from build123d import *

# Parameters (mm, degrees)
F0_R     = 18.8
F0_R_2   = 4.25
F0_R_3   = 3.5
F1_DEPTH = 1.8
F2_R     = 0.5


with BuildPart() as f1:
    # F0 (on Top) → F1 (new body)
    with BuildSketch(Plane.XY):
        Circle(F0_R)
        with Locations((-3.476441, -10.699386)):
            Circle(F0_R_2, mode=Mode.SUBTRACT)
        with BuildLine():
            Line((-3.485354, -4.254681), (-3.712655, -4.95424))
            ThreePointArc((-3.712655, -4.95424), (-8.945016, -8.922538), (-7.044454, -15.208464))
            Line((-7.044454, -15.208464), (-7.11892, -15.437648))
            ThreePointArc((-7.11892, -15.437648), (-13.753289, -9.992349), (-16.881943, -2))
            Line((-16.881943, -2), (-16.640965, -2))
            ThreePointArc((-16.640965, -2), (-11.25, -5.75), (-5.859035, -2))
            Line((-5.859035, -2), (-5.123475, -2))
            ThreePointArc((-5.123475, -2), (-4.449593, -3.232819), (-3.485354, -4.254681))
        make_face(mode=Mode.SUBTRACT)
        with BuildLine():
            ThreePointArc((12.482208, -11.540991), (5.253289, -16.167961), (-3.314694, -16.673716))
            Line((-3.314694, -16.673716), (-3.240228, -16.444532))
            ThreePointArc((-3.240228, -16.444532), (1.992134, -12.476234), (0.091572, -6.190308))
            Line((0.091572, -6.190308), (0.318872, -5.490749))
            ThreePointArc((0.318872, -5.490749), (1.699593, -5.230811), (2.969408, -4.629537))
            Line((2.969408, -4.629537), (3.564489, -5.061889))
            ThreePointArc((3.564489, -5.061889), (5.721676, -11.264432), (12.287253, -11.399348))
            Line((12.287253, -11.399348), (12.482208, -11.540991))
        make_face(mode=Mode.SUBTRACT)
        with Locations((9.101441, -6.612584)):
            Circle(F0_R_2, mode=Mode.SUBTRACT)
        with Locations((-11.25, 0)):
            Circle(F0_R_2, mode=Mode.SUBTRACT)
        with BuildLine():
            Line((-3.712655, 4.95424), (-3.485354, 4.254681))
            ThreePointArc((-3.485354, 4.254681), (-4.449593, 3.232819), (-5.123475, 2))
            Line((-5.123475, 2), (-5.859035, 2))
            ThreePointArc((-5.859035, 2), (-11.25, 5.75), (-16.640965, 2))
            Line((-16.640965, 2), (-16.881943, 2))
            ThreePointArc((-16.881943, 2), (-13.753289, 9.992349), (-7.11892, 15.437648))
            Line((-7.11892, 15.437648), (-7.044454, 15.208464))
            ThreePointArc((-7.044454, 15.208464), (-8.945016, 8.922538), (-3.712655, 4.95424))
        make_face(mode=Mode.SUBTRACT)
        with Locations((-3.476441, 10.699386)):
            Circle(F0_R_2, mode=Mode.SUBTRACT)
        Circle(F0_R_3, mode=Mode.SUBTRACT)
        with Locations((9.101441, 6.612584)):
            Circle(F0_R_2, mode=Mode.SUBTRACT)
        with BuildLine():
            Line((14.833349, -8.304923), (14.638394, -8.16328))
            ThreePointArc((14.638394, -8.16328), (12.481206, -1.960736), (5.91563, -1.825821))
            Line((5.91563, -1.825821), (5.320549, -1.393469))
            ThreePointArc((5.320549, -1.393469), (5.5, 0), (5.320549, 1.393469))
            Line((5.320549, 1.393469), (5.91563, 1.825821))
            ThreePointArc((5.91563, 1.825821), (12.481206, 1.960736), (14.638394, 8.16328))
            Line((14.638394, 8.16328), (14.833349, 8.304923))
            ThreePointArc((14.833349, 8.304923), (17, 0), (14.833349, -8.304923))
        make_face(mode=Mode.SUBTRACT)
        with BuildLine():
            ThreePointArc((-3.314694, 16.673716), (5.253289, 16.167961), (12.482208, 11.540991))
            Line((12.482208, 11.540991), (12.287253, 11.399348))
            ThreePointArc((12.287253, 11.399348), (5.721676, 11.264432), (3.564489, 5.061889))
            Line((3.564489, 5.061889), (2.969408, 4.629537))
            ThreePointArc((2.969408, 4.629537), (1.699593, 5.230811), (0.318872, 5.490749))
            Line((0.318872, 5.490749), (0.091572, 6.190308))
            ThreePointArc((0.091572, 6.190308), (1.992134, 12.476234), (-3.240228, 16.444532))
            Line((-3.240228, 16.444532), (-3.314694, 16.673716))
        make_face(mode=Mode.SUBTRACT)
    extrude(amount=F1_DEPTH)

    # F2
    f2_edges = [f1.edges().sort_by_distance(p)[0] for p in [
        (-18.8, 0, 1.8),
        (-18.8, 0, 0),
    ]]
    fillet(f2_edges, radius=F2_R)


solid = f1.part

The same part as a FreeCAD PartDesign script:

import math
import FreeCAD as App
import Part
import Sketcher
from FreeCAD import Vector
Q = App.Units.Quantity


def edges_at(feature, points):
    """Names of the edges that pass closest to the given points."""
    edges = feature.Shape.Edges
    near = lambda p: min(range(len(edges)), key=lambda i: edges[i].distToShape(Part.Vertex(*p))[0])
    return sorted({f"Edge{near(p) + 1}" for p in points})

doc = App.newDocument("Part")
params = doc.addObject("Spreadsheet::Sheet", "Params")
for row, (alias, value) in enumerate([
    ("sketch1_diameter", "7 mm"),
    ("sketch1_radius", "17 mm"),
    ("sketch1_diameter2", "37.6 mm"),
    ("sketch1_diameter3", "8.5 mm"),
    ("sketch1_radius2", "5.500001 mm"),
    ("pad1_length", "1.8 mm"),
    ("fillet_radius", "0.5 mm"),
], start=1):
    params.set(f"A{row}", alias)
    params.set(f"B{row}", "=" + value)
    params.setAlias(f"B{row}", alias)

body = doc.addObject("PartDesign::Body", "Body")

sketch1 = body.newObject("Sketcher::SketchObject", "Sketch")
sketch1.AttachmentSupport = (doc.getObject("XY_Plane"), [""])
sketch1.MapMode = "FlatFace"
sketch1.addGeometry([
    Part.Circle(Vector(0, 0, 0), Vector(0, 0, 1), 18.8),
    Part.ArcOfCircle(Part.Circle(Vector(0, 0, 0), Vector(0, 0, 1), 5.5), math.radians(-159), math.radians(-129)),
    Part.LineSegment(Vector(-3.49, -4.25, 0), Vector(-3.71, -4.95, 0)),
    Part.ArcOfCircle(Part.Circle(Vector(-3.48, -10.7, 0), Vector(0, 0, 1), 5.75), math.radians(92), math.radians(232)),
    Part.LineSegment(Vector(-7.04, -15.21, 0), Vector(-7.12, -15.44, 0)),
    Part.ArcOfCircle(Part.Circle(Vector(0, 0, 0), Vector(0, 0, 1), 17), math.radians(-173), math.radians(-115)),
    Part.LineSegment(Vector(-16.88, -2, 0), Vector(-16.64, -2, 0)),
    Part.ArcOfCircle(Part.Circle(Vector(-11.25, 0, 0), Vector(0, 0, 1), 5.75), math.radians(-160), math.radians(-20)),
    Part.LineSegment(Vector(-5.86, -2, 0), Vector(-5.12, -2, 0)),
    Part.Circle(Vector(-3.48, -10.7, 0), Vector(0, 0, 1), 4.25),
    Part.Circle(Vector(-11.25, 0, 0), Vector(0, 0, 1), 4.25),
    Part.Circle(Vector(0, 0, 0), Vector(0, 0, 1), 3.5),
    Part.LineSegment(Vector(12.29, -11.4, 0), Vector(12.48, -11.54, 0)),
    Part.ArcOfCircle(Part.Circle(Vector(0, 0, 0), Vector(0, 0, 1), 17), math.radians(-101), math.radians(-43)),
    Part.LineSegment(Vector(-3.31, -16.67, 0), Vector(-3.24, -16.44, 0)),
    Part.ArcOfCircle(Part.Circle(Vector(-3.48, -10.7, 0), Vector(0, 0, 1), 5.75), math.radians(-88), math.radians(52)),
    Part.LineSegment(Vector(0.09, -6.19, 0), Vector(0.32, -5.49, 0)),
    Part.ArcOfCircle(Part.Circle(Vector(0, 0, 0), Vector(0, 0, 1), 5.5), math.radians(-87), math.radians(-57)),
    Part.LineSegment(Vector(2.97, -4.63, 0), Vector(3.56, -5.06, 0)),
    Part.ArcOfCircle(Part.Circle(Vector(9.1, -6.61, 0), Vector(0, 0, 1), 5.75), math.radians(164), math.radians(304)),
    Part.Circle(Vector(9.1, -6.61, 0), Vector(0, 0, 1), 4.25),
    Part.ArcOfCircle(Part.Circle(Vector(0, 0, 0), Vector(0, 0, 1), 17), math.radians(-29), math.radians(29)),
    Part.LineSegment(Vector(14.83, -8.3, 0), Vector(14.64, -8.16, 0)),
    Part.ArcOfCircle(Part.Circle(Vector(9.1, -6.61, 0), Vector(0, 0, 1), 5.75), math.radians(-16), math.radians(124)),
    Part.LineSegment(Vector(5.92, -1.83, 0), Vector(5.32, -1.39, 0)),
    Part.ArcOfCircle(Part.Circle(Vector(0, 0, 0), Vector(0, 0, 1), 5.5), math.radians(-15), math.radians(15)),
    Part.LineSegment(Vector(5.32, 1.39, 0), Vector(5.92, 1.83, 0)),
    Part.ArcOfCircle(Part.Circle(Vector(9.1, 6.61, 0), Vector(0, 0, 1), 5.75), math.radians(-124), math.radians(16)),
    Part.LineSegment(Vector(14.64, 8.16, 0), Vector(14.83, 8.3, 0)),
    Part.ArcOfCircle(Part.Circle(Vector(-3.48, 10.7, 0), Vector(0, 0, 1), 5.75), math.radians(128), math.radians(268)),
    Part.LineSegment(Vector(-3.71, 4.95, 0), Vector(-3.49, 4.25, 0)),
    Part.ArcOfCircle(Part.Circle(Vector(0, 0, 0), Vector(0, 0, 1), 5.5), math.radians(129), math.radians(159)),
    Part.LineSegment(Vector(-5.12, 2, 0), Vector(-5.86, 2, 0)),
    Part.ArcOfCircle(Part.Circle(Vector(-11.25, 0, 0), Vector(0, 0, 1), 5.75), math.radians(20), math.radians(160)),
    Part.LineSegment(Vector(-16.64, 2, 0), Vector(-16.88, 2, 0)),
    Part.ArcOfCircle(Part.Circle(Vector(0, 0, 0), Vector(0, 0, 1), 17), math.radians(115), math.radians(173)),
    Part.LineSegment(Vector(-7.12, 15.44, 0), Vector(-7.04, 15.21, 0)),
    Part.Circle(Vector(-3.48, 10.7, 0), Vector(0, 0, 1), 4.25),
    Part.Circle(Vector(9.1, 6.61, 0), Vector(0, 0, 1), 4.25),
    Part.LineSegment(Vector(-3.24, 16.44, 0), Vector(-3.31, 16.67, 0)),
    Part.ArcOfCircle(Part.Circle(Vector(0, 0, 0), Vector(0, 0, 1), 17), math.radians(43), math.radians(101)),
    Part.LineSegment(Vector(12.48, 11.54, 0), Vector(12.29, 11.4, 0)),
    Part.ArcOfCircle(Part.Circle(Vector(9.1, 6.61, 0), Vector(0, 0, 1), 5.75), math.radians(56), math.radians(196)),
    Part.LineSegment(Vector(3.56, 5.06, 0), Vector(2.97, 4.63, 0)),
    Part.ArcOfCircle(Part.Circle(Vector(0, 0, 0), Vector(0, 0, 1), 5.5), math.radians(57), math.radians(87)),
    Part.LineSegment(Vector(0.32, 5.49, 0), Vector(0.09, 6.19, 0)),
    Part.ArcOfCircle(Part.Circle(Vector(-3.48, 10.7, 0), Vector(0, 0, 1), 5.75), math.radians(-52), math.radians(88)),
], False)
sketch1.addConstraint([
    Sketcher.Constraint("Coincident", 1, 2, 2, 1),
    Sketcher.Constraint("Coincident", 2, 2, 3, 1),
    Sketcher.Constraint("Coincident", 3, 2, 4, 1),
    Sketcher.Constraint("Coincident", 4, 2, 5, 2),
    Sketcher.Constraint("Coincident", 5, 1, 6, 1),
    Sketcher.Constraint("Coincident", 6, 2, 7, 1),
    Sketcher.Constraint("Coincident", 7, 2, 8, 1),
    Sketcher.Constraint("Coincident", 8, 2, 1, 1),
    Sketcher.Constraint("Coincident", 12, 2, 13, 2),
    Sketcher.Constraint("Coincident", 13, 1, 14, 1),
    Sketcher.Constraint("Coincident", 14, 2, 15, 1),
    Sketcher.Constraint("Coincident", 15, 2, 16, 1),
    Sketcher.Constraint("Coincident", 16, 2, 17, 1),
    Sketcher.Constraint("Coincident", 17, 2, 18, 1),
    Sketcher.Constraint("Coincident", 18, 2, 19, 1),
    Sketcher.Constraint("Coincident", 19, 2, 12, 1),
    Sketcher.Constraint("Coincident", 21, 1, 22, 1),
    Sketcher.Constraint("Coincident", 22, 2, 23, 1),
    Sketcher.Constraint("Coincident", 23, 2, 24, 1),
    Sketcher.Constraint("Coincident", 24, 2, 25, 1),
    Sketcher.Constraint("Coincident", 25, 2, 26, 1),
    Sketcher.Constraint("Coincident", 26, 2, 27, 1),
    Sketcher.Constraint("Coincident", 27, 2, 28, 1),
    Sketcher.Constraint("Coincident", 28, 2, 21, 2),
    Sketcher.Constraint("Coincident", 29, 2, 30, 1),
    Sketcher.Constraint("Coincident", 30, 2, 31, 1),
    Sketcher.Constraint("Coincident", 31, 2, 32, 1),
    Sketcher.Constraint("Coincident", 32, 2, 33, 1),
    Sketcher.Constraint("Coincident", 33, 2, 34, 1),
    Sketcher.Constraint("Coincident", 34, 2, 35, 2),
    Sketcher.Constraint("Coincident", 35, 1, 36, 1),
    Sketcher.Constraint("Coincident", 36, 2, 29, 1),
    Sketcher.Constraint("Coincident", 39, 2, 40, 2),
    Sketcher.Constraint("Coincident", 40, 1, 41, 1),
    Sketcher.Constraint("Coincident", 41, 2, 42, 1),
    Sketcher.Constraint("Coincident", 42, 2, 43, 1),
    Sketcher.Constraint("Coincident", 43, 2, 44, 1),
    Sketcher.Constraint("Coincident", 44, 2, 45, 1),
    Sketcher.Constraint("Coincident", 45, 2, 46, 1),
    Sketcher.Constraint("Coincident", 46, 2, 39, 1),
    Sketcher.Constraint("Horizontal", 6),
    Sketcher.Constraint("Horizontal", 8),
    Sketcher.Constraint("Horizontal", 32),
    Sketcher.Constraint("Horizontal", 34),
    Sketcher.Constraint("Coincident", 0, 3, -1, 1),
    Sketcher.Constraint("Coincident", 1, 3, -1, 1),
    Sketcher.Constraint("Coincident", 5, 3, -1, 1),
    Sketcher.Constraint("Coincident", 11, 3, -1, 1),
    Sketcher.Constraint("Coincident", 13, 3, -1, 1),
    Sketcher.Constraint("Coincident", 17, 3, -1, 1),
    Sketcher.Constraint("Coincident", 21, 3, -1, 1),
    Sketcher.Constraint("Coincident", 25, 3, -1, 1),
    Sketcher.Constraint("Coincident", 31, 3, -1, 1),
    Sketcher.Constraint("Coincident", 35, 3, -1, 1),
    Sketcher.Constraint("Coincident", 40, 3, -1, 1),
    Sketcher.Constraint("Coincident", 44, 3, -1, 1),
    Sketcher.Constraint("Coincident", 9, 3, 3, 3),
    Sketcher.Constraint("Coincident", 10, 3, 7, 3),
    Sketcher.Constraint("Coincident", 15, 3, 3, 3),
    Sketcher.Constraint("Coincident", 20, 3, 19, 3),
    Sketcher.Constraint("Coincident", 23, 3, 19, 3),
    Sketcher.Constraint("Coincident", 33, 3, 7, 3),
    Sketcher.Constraint("Coincident", 37, 3, 29, 3),
    Sketcher.Constraint("Coincident", 38, 3, 27, 3),
    Sketcher.Constraint("Coincident", 42, 3, 27, 3),
    Sketcher.Constraint("Coincident", 46, 3, 29, 3),
    Sketcher.Constraint("Equal", 3, 7),
    Sketcher.Constraint("Equal", 9, 10),
    Sketcher.Constraint("Equal", 7, 15),
    Sketcher.Constraint("Equal", 15, 19),
    Sketcher.Constraint("Equal", 10, 20),
    Sketcher.Constraint("Equal", 13, 21),
    Sketcher.Constraint("Equal", 19, 23),
    Sketcher.Constraint("Equal", 23, 27),
    Sketcher.Constraint("Equal", 27, 29),
    Sketcher.Constraint("Equal", 1, 31),
    Sketcher.Constraint("Equal", 29, 33),
    Sketcher.Constraint("Equal", 5, 35),
    Sketcher.Constraint("Equal", 20, 37),
    Sketcher.Constraint("Equal", 37, 38),
    Sketcher.Constraint("Equal", 21, 40),
    Sketcher.Constraint("Equal", 33, 42),
    Sketcher.Constraint("Equal", 17, 44),
    Sketcher.Constraint("Equal", 42, 46),
    Sketcher.Constraint("Symmetric", 19, 3, 27, 3, -1),
    Sketcher.Constraint("Symmetric", 3, 3, 29, 3, -1),
    Sketcher.Constraint("Symmetric", 7, 2, 32, 2, -1),
    Sketcher.Constraint("Parallel", 4, 14),
    Sketcher.Constraint("Parallel", 14, 16),
    Sketcher.Constraint("Parallel", 12, 18),
    Sketcher.Constraint("Parallel", 18, 22),
    Sketcher.Constraint("Parallel", 22, 24),
    Sketcher.Constraint("Parallel", 26, 28),
    Sketcher.Constraint("Parallel", 36, 39),
    Sketcher.Constraint("Parallel", 28, 41),
    Sketcher.Constraint("Parallel", 41, 43),
    Sketcher.Constraint("Parallel", 39, 45),
    Sketcher.Constraint("Horizontal", 6, 2, 7, 2),
    Sketcher.Constraint("Horizontal", 32, 2, 33, 2),
    Sketcher.Constraint("Vertical", 24, 2, 25, 2),
    Sketcher.Constraint("Vertical", 23, 2, 26, 2),
    Sketcher.Constraint("Vertical", 22, 2, 27, 2),
    Sketcher.Constraint("Vertical", 2, 2, 29, 2),
    Sketcher.Constraint("Vertical", 1, 2, 30, 2),
    Sketcher.Constraint("Vertical", 4, 2, 35, 1),
    Sketcher.Constraint("Vertical", 3, 2, 36, 2),
    Sketcher.Constraint("Vertical", 13, 1, 39, 2),
    Sketcher.Constraint("Vertical", 12, 2, 40, 1),
    Sketcher.Constraint("Vertical", 18, 2, 42, 2),
    Sketcher.Constraint("Vertical", 16, 2, 44, 2),
    Sketcher.Constraint("Equal", 4, 12),
    Sketcher.Constraint("Equal", 12, 14),
    Sketcher.Constraint("Equal", 2, 16),
    Sketcher.Constraint("Equal", 16, 18),
    Sketcher.Constraint("Equal", 14, 22),
    Sketcher.Constraint("Equal", 18, 24),
    Sketcher.Constraint("Diameter", 11, Q("7 mm")),
    Sketcher.Constraint("Radius", 5, Q("17 mm")),
    Sketcher.Constraint("Diameter", 0, Q("37.6 mm")),
    Sketcher.Constraint("Diameter", 9, Q("8.5 mm")),
    Sketcher.Constraint("Radius", 17, Q("5.500001 mm")),
    Sketcher.Constraint("Angle", 12, Q("-35.999981 deg")),
    Sketcher.Constraint("Radius", 3, Q("5.75 mm")),
    Sketcher.Constraint("DistanceY", 5, 1, -1, 1, Q("2 mm")),
    Sketcher.Constraint("DistanceX", 7, 3, -1, 1, Q("11.25 mm")),
    Sketcher.Constraint("Radius", 1, Q("5.500008 mm")),
    Sketcher.Constraint("Radius", 13, Q("16.999997 mm")),
    Sketcher.Constraint("Radius", 25, Q("5.499993 mm")),
    Sketcher.Constraint("Distance", 2, Q("0.73556 mm")),
    Sketcher.Constraint("Distance", 4, Q("0.240978 mm")),
    Sketcher.Constraint("DistanceX", 3, 3, -1, 1, Q("3.476441 mm")),
    Sketcher.Constraint("DistanceX", -1, 1, 19, 3, Q("9.101441 mm")),
    Sketcher.Constraint("DistanceY", 1, 2, -1, 1, Q("4.254681 mm")),
    Sketcher.Constraint("DistanceY", 2, 2, -1, 1, Q("4.95424 mm")),
    Sketcher.Constraint("DistanceX", 4, 2, -1, 1, Q("7.11892 mm")),
    Sketcher.Constraint("DistanceY", 12, 2, -1, 1, Q("11.540991 mm")),
])
sketch1.setExpression("Constraints[116]", "Params.sketch1_diameter")
sketch1.setExpression("Constraints[117]", "Params.sketch1_radius")
sketch1.setExpression("Constraints[118]", "Params.sketch1_diameter2")
sketch1.setExpression("Constraints[119]", "Params.sketch1_diameter3")
sketch1.setExpression("Constraints[120]", "Params.sketch1_radius2")
pad1 = body.newObject("PartDesign::Pad", "Pad")
pad1.Profile = sketch1
pad1.setExpression("Length", "Params.pad1_length")
doc.recompute()

fillet = body.newObject("PartDesign::Fillet", "Fillet")
fillet.Base = (pad1, edges_at(pad1, [(-18.8, 0, 1.8), (-18.8, 0, 0)]))
fillet.setExpression("Radius", "Params.fillet_radius")

doc.recompute()
